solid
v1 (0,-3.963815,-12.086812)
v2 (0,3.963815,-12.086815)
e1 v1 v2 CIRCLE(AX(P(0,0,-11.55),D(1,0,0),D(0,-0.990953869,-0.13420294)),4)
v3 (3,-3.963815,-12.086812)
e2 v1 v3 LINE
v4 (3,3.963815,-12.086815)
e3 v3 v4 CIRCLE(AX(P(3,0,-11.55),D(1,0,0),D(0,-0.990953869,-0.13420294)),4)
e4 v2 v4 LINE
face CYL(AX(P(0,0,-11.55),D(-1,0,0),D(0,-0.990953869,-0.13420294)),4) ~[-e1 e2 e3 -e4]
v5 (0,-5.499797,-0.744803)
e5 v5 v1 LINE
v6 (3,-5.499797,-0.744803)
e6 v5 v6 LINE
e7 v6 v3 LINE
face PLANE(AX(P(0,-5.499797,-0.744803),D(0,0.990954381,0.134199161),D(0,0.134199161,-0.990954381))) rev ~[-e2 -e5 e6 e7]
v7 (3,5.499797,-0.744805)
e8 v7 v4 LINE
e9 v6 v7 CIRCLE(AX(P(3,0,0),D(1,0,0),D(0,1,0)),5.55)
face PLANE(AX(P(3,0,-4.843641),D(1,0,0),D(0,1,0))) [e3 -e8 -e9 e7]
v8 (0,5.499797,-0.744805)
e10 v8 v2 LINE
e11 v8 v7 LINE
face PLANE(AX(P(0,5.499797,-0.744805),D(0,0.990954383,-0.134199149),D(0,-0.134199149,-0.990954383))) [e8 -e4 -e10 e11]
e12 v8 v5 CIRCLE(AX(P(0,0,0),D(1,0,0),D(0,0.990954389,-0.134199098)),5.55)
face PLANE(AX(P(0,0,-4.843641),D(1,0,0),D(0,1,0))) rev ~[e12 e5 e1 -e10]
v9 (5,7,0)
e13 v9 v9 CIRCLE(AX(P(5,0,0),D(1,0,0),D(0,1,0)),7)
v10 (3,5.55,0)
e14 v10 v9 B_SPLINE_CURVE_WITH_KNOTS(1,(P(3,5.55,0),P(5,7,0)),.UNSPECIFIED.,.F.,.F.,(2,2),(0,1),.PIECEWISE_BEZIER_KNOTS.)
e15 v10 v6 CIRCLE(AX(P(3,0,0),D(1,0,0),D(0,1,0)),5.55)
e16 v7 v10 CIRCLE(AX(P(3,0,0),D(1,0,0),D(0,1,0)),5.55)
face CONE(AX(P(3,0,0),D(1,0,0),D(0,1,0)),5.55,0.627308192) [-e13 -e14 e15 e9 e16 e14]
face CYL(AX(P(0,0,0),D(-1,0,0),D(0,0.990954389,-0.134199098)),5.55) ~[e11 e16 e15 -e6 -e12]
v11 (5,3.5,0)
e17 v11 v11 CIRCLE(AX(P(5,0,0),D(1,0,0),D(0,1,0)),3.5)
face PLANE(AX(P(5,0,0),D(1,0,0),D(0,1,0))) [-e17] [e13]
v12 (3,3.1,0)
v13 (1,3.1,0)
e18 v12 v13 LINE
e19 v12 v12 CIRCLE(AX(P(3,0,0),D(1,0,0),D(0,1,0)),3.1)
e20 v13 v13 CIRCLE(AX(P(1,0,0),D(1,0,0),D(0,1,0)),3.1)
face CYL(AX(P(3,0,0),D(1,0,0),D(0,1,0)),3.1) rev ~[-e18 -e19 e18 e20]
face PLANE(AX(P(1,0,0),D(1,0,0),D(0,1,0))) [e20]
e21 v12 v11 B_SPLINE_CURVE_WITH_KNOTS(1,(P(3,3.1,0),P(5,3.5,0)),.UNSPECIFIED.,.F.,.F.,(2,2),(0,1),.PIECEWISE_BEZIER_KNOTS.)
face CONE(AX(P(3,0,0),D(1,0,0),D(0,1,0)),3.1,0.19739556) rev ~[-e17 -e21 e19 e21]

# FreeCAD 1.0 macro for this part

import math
import FreeCAD as App
import Part
import Sketcher

V = App.Vector

doc = App.newDocument("Part")
body = doc.addObject("PartDesign::Body", "Body")

# Sketch on YZ plane
sketch1 = body.newObject("Sketcher::SketchObject", "Sketch")
sketch1.AttachmentSupport = (doc.getObject("YZ_Plane"), [""])
sketch1.MapMode = "FlatFace"
sketch1.addGeometry([
    Part.ArcOfCircle(Part.Circle(V(0, 0, 0), V(0, 0, 1), 5.6), math.radians(-8), math.radians(188)),
    Part.LineSegment(V(-5.5, -0.7, 0), V(-4, -12.1, 0)),
    Part.ArcOfCircle(Part.Circle(V(0, -11.6, 0), V(0, 0, 1), 4), math.radians(-172), math.radians(-8)),
    Part.LineSegment(V(4, -12.1, 0), V(5.5, -0.7, 0)),
], False)
sketch1.addConstraint([
    Sketcher.Constraint("Tangent", 0, 2, 1, 1),
    Sketcher.Constraint("Coincident", 1, 2, 2, 1),
    Sketcher.Constraint("Coincident", 2, 2, 3, 1),
    Sketcher.Constraint("Tangent", 3, 2, 0, 1),
    Sketcher.Constraint("Coincident", 0, 3, -1, 1),
    Sketcher.Constraint("Symmetric", 1, 2, 2, 2, -2),
    Sketcher.Constraint("Radius", 2, 4.0),
    Sketcher.Constraint("Radius", 0, 5.55),
    Sketcher.Constraint("DistanceY", 2, 3, -1, 1, 11.55),
    Sketcher.Constraint("Distance", 1, 11.445541),
])
pad1 = body.newObject("PartDesign::Pad", "Pad")
pad1.Profile = sketch1
pad1.Length = 3

# Sketch on YZ plane
sketch2 = body.newObject("Sketcher::SketchObject", "Sketch001")
sketch2.AttachmentSupport = (doc.getObject("YZ_Plane"), [""])
sketch2.MapMode = "FlatFace"
sketch2.AttachmentOffset = App.Placement(V(0, 0, 3), App.Rotation())
sketch2.addGeometry(Part.Circle(V(0, 0, 0), V(0, 0, 1), 3.1), False)
sketch2.addConstraint([
    Sketcher.Constraint("Coincident", 0, 3, -1, 1),
    Sketcher.Constraint("Diameter", 0, 6.2),
])
pocket1 = body.newObject("PartDesign::Pocket", "Pocket")
pocket1.Profile = sketch2
pocket1.Length = 2
body2 = doc.addObject("PartDesign::Body", "Body001")

# Sketch on YZ plane
sketch3 = body2.newObject("Sketcher::SketchObject", "Sketch002")
sketch3.AttachmentSupport = (doc.getObject("YZ_Plane001"), [""])
sketch3.MapMode = "FlatFace"
sketch3.AttachmentOffset = App.Placement(V(0, 0, 3), App.Rotation())
sketch3.addGeometry(Part.Circle(V(0, 0, 0), V(0, 0, 1), 3.1), False)
sketch3.addConstraint([
    Sketcher.Constraint("Coincident", 0, 3, -1, 1),
    Sketcher.Constraint("Diameter", 0, 6.2),
])

# Sketch on YZ plane
sketch4 = body2.newObject("Sketcher::SketchObject", "Sketch003")
sketch4.AttachmentSupport = (doc.getObject("YZ_Plane001"), [""])
sketch4.MapMode = "FlatFace"
sketch4.AttachmentOffset = App.Placement(V(0, 0, 5), App.Rotation())
sketch4.addGeometry(Part.Circle(V(0, 0, 0), V(0, 0, 1), 3.5), False)
sketch4.addConstraint([
    Sketcher.Constraint("Coincident", 0, 3, -1, 1),
    Sketcher.Constraint("Diameter", 0, 7.0),
])

additiveloft = body2.newObject("PartDesign::AdditiveLoft", "AdditiveLoft")
additiveloft.Profile = sketch3
additiveloft.Sections = [sketch4]
body3 = doc.addObject("PartDesign::Body", "Body002")

# Sketch on YZ plane
sketch5 = body3.newObject("Sketcher::SketchObject", "Sketch004")
sketch5.AttachmentSupport = (doc.getObject("YZ_Plane002"), [""])
sketch5.MapMode = "FlatFace"
sketch5.AttachmentOffset = App.Placement(V(0, 0, 3), App.Rotation())
sketch5.addGeometry(Part.Circle(V(0, 0, 0), V(0, 0, 1), 6), False)
sketch5.addConstraint([
    Sketcher.Constraint("Coincident", 0, 3, -1, 1),
    Sketcher.Constraint("Diameter", 0, 11.1),
])

# Sketch on YZ plane
sketch6 = body3.newObject("Sketcher::SketchObject", "Sketch005")
sketch6.AttachmentSupport = (doc.getObject("YZ_Plane002"), [""])
sketch6.MapMode = "FlatFace"
sketch6.AttachmentOffset = App.Placement(V(0, 0, 5), App.Rotation())
sketch6.addGeometry(Part.Circle(V(0, 0, 0), V(0, 0, 1), 7), False)
sketch6.addConstraint([
    Sketcher.Constraint("Coincident", 0, 3, -1, 1),
    Sketcher.Constraint("Diameter", 0, 14.0),
])

additiveloft2 = body3.newObject("PartDesign::AdditiveLoft", "AdditiveLoft001")
additiveloft2.Profile = sketch5
additiveloft2.Sections = [sketch6]
doc.recompute()

boolean = body3.newObject("PartDesign::Boolean", "Boolean")
boolean.Type = "Cut"
boolean.addObjects([body2])
doc.recompute()

boolean2 = body3.newObject("PartDesign::Boolean", "Boolean001")
boolean2.Type = "Fuse"
boolean2.addObjects([body])

doc.recompute()
